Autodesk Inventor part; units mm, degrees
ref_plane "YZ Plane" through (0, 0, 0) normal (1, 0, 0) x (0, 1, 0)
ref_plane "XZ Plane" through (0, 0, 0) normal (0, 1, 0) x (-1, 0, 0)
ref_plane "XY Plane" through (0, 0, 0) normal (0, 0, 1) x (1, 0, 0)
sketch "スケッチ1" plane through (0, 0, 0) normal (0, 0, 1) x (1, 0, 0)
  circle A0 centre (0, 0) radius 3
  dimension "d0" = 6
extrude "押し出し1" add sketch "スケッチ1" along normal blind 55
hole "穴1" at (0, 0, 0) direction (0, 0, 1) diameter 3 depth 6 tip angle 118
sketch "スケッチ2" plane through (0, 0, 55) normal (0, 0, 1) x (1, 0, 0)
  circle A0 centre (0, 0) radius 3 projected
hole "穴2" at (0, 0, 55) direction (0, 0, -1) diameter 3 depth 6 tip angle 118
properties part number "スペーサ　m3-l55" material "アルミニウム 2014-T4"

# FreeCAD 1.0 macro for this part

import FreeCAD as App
import Part
import Sketcher

V = App.Vector
Q = App.Units.Quantity

doc = App.newDocument("Part")
body = doc.addObject("PartDesign::Body", "Body")

# Sketch on XY plane
sketch1 = body.newObject("Sketcher::SketchObject", "Sketch")
sketch1.AttachmentSupport = (doc.getObject("XY_Plane"), [""])
sketch1.MapMode = "FlatFace"
sketch1.addGeometry(Part.Circle(V(0, 0, 0), V(0, 0, 1), 3), False)
sketch1.addConstraint([
    Sketcher.Constraint("Coincident", 0, 3, -1, 1),
    Sketcher.Constraint("Diameter", 0, Q("6 mm")),
])
pad1 = body.newObject("PartDesign::Pad", "Pad")
pad1.Profile = sketch1
pad1.Length = 55

# Sketch on XY plane
sketch2 = body.newObject("Sketcher::SketchObject", "Sketch001")
sketch2.AttachmentSupport = (doc.getObject("XY_Plane"), [""])
sketch2.MapMode = "FlatFace"
sketch2.addGeometry(Part.Circle(V(0, 0, 0), V(0, 0, 1), 1.5), False)
sketch2.addConstraint([
    Sketcher.Constraint("Coincident", 0, 3, -1, 1),
    Sketcher.Constraint("Diameter", 0, Q("3 mm")),
])
doc.recompute()
hole = body.newObject("PartDesign::Hole", "Hole")
hole.Profile = sketch2
hole.ThreadType = "None"
hole.Diameter = 3
hole.DepthType = "Dimension"
hole.Depth = 6
hole.DrillPoint = "Angled"
hole.DrillPointAngle = 118
hole.Reversed = True

# Sketch on XY plane
sketch3 = body.newObject("Sketcher::SketchObject", "Sketch002")
sketch3.AttachmentSupport = (doc.getObject("XY_Plane"), [""])
sketch3.MapMode = "FlatFace"
sketch3.AttachmentOffset = App.Placement(V(0, 0, 55), App.Rotation())
sketch3.addGeometry(Part.Circle(V(0, 0, 0), V(0, 0, 1), 1.5), False)
sketch3.addConstraint([
    Sketcher.Constraint("Coincident", 0, 3, -1, 1),
    Sketcher.Constraint("Diameter", 0, Q("3 mm")),
])
doc.recompute()
hole2 = body.newObject("PartDesign::Hole", "Hole001")
hole2.Profile = sketch3
hole2.ThreadType = "None"
hole2.Diameter = 3
hole2.DepthType = "Dimension"
hole2.Depth = 6
hole2.DrillPoint = "Angled"
hole2.DrillPointAngle = 118

doc.recompute()
